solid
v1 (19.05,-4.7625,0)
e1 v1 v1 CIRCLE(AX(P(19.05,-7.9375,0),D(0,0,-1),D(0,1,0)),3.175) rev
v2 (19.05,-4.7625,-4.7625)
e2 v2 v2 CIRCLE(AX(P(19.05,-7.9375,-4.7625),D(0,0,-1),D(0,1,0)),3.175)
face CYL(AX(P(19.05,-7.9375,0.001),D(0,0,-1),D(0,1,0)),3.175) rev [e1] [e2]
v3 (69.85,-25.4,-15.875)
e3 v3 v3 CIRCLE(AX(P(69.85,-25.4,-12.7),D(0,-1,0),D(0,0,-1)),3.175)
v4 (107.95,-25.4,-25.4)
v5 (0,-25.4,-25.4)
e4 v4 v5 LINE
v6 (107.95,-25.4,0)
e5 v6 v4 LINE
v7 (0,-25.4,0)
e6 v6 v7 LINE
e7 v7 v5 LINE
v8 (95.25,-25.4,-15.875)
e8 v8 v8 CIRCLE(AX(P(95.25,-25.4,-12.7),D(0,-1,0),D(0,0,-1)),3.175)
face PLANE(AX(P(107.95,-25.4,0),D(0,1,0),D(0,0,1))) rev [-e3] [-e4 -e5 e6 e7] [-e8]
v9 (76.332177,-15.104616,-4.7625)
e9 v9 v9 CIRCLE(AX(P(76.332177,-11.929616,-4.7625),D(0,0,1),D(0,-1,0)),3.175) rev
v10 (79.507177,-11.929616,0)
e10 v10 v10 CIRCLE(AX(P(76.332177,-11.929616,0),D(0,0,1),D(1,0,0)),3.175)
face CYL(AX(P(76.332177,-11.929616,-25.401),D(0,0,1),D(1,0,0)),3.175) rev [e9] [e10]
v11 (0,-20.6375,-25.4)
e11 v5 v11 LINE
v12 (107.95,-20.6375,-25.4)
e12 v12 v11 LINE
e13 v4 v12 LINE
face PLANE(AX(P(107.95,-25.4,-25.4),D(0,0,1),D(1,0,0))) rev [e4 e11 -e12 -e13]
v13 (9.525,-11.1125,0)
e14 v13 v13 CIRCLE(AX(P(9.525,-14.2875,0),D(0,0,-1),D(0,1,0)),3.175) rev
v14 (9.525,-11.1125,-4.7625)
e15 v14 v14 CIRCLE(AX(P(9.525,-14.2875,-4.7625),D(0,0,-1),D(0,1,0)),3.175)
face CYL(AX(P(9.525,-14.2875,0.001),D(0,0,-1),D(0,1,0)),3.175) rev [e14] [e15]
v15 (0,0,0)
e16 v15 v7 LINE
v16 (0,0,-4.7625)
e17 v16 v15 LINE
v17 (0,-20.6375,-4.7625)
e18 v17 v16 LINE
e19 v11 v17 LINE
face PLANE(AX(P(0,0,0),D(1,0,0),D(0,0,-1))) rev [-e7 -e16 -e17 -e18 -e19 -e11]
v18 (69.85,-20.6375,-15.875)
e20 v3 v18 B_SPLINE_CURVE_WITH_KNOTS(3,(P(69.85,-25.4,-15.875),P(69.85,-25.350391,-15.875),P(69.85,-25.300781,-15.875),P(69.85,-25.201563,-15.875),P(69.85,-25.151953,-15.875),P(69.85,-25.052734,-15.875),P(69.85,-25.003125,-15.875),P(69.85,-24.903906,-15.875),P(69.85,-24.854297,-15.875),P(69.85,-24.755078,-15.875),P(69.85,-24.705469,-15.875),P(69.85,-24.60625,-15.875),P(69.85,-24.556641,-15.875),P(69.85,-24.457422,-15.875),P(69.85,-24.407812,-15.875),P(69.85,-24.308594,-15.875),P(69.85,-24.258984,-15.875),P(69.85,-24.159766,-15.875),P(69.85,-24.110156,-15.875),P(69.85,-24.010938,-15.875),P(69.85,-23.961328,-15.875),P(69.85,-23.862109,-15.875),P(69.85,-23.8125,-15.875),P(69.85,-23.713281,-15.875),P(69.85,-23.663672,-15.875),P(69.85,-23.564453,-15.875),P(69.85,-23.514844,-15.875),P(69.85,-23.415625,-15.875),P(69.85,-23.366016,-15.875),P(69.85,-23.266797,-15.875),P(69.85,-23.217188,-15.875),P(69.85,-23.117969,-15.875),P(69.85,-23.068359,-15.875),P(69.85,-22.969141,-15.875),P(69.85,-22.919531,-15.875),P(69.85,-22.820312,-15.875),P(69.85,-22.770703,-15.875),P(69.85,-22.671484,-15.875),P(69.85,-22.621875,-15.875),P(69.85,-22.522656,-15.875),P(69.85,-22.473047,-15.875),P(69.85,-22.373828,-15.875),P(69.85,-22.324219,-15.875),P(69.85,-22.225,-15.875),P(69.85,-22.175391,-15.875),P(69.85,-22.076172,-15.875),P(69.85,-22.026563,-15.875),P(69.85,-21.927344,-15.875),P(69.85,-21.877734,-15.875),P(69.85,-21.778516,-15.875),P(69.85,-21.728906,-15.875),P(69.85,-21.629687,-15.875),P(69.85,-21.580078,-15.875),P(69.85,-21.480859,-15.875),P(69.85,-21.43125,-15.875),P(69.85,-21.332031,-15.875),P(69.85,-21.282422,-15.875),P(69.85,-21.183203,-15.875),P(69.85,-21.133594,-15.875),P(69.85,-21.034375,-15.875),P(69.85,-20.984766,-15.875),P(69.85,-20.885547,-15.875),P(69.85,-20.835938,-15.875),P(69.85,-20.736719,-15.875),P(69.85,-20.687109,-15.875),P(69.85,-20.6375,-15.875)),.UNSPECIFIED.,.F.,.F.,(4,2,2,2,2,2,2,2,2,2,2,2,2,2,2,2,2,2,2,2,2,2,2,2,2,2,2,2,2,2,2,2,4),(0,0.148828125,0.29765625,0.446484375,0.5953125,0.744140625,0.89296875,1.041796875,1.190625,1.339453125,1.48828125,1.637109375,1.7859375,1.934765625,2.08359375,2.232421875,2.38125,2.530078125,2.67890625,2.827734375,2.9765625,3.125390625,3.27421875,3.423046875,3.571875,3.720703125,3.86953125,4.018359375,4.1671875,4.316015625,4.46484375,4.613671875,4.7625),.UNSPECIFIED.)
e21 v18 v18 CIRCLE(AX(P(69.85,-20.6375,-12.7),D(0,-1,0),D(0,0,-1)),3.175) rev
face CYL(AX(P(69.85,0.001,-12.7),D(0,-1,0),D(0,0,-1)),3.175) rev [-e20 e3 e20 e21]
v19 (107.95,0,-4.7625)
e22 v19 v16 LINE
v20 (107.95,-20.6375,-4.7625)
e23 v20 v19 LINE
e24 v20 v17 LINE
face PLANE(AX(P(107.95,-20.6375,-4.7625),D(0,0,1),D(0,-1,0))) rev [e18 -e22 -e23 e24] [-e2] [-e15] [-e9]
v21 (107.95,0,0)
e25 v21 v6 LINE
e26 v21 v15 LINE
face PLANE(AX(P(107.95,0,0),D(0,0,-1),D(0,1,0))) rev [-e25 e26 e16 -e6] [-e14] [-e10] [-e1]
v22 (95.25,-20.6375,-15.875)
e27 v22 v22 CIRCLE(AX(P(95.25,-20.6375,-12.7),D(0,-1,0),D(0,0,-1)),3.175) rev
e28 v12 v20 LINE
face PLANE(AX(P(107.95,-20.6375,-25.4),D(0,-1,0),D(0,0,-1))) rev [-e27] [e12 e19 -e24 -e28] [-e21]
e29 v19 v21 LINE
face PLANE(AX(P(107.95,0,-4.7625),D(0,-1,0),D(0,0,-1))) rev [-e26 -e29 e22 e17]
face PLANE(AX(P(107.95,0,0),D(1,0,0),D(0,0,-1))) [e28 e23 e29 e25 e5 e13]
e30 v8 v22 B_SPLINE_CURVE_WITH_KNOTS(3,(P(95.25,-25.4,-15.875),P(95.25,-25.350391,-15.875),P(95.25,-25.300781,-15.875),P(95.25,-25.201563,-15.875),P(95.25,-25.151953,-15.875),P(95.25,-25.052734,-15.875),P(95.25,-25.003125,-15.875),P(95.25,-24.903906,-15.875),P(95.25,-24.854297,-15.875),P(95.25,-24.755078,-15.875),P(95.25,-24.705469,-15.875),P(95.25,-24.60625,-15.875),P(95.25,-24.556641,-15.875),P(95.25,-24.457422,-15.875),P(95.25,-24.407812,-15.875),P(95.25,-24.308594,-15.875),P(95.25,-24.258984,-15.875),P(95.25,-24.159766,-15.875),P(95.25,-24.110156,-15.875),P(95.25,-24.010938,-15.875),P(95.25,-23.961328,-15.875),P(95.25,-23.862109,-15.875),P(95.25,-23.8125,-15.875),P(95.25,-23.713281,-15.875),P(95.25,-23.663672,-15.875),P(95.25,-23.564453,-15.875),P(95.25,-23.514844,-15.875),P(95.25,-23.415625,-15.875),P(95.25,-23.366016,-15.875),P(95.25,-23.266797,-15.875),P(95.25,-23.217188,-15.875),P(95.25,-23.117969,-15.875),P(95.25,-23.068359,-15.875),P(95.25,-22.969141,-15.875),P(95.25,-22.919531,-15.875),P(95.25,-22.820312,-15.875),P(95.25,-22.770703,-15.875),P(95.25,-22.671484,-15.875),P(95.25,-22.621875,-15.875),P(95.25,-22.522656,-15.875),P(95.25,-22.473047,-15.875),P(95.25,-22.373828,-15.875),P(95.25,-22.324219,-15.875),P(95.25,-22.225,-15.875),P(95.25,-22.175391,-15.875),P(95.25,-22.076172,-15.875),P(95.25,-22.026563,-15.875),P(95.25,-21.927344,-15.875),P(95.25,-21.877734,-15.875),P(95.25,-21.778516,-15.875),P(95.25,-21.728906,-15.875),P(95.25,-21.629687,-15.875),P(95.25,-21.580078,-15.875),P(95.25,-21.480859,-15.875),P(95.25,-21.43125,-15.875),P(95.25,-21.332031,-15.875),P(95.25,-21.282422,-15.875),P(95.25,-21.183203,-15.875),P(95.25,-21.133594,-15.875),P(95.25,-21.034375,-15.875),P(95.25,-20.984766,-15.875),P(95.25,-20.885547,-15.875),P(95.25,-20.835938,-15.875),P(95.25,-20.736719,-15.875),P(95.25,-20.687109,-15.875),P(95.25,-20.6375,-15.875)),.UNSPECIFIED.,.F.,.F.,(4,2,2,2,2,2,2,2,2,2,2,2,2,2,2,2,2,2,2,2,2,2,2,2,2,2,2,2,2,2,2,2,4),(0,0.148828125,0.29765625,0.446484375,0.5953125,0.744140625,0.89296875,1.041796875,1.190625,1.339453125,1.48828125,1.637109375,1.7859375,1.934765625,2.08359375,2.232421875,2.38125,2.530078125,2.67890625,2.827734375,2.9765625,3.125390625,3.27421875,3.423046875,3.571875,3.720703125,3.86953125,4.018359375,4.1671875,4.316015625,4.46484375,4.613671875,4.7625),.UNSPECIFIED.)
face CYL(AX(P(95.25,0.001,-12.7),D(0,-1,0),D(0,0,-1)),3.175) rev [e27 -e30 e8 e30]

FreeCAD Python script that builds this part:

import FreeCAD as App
import Part
import Sketcher
Q = App.Units.Quantity

doc = App.newDocument("Part")
body = doc.addObject("PartDesign::Body", "Body")

# Sketch on YZ plane
sketch1 = body.newObject("Sketcher::SketchObject", "Sketch")
sketch1.AttachmentSupport = (doc.getObject("YZ_Plane"), [""])
sketch1.MapMode = "FlatFace"
sketch1.addGeometry(Part.LineSegment(App.Vector(0, 0, 0), App.Vector(-25.4, 0, 0)), False)
sketch1.addGeometry(Part.LineSegment(App.Vector(-25.4, 0, 0), App.Vector(-25.4, -25.4, 0)), False)
sketch1.addGeometry(Part.LineSegment(App.Vector(-25.4, -25.4, 0), App.Vector(-20.6375, -25.4, 0)), False)
sketch1.addGeometry(Part.LineSegment(App.Vector(-20.6375, -25.4, 0), App.Vector(-20.6375, -4.7625, 0)), False)
sketch1.addGeometry(Part.LineSegment(App.Vector(-20.6375, -4.7625, 0), App.Vector(0, -4.7625, 0)), False)
sketch1.addGeometry(Part.LineSegment(App.Vector(0, -4.7625, 0), App.Vector(0, 0, 0)), False)
sketch1.addConstraint(Sketcher.Constraint("Coincident", 0, 2, 1, 1))
sketch1.addConstraint(Sketcher.Constraint("Coincident", 1, 2, 2, 1))
sketch1.addConstraint(Sketcher.Constraint("Coincident", 2, 2, 3, 1))
sketch1.addConstraint(Sketcher.Constraint("Coincident", 3, 2, 4, 1))
sketch1.addConstraint(Sketcher.Constraint("Coincident", 4, 2, 5, 1))
sketch1.addConstraint(Sketcher.Constraint("Coincident", 5, 2, 0, 1))
sketch1.addConstraint(Sketcher.Constraint("Horizontal", 0))
sketch1.addConstraint(Sketcher.Constraint("Vertical", 1))
sketch1.addConstraint(Sketcher.Constraint("Horizontal", 2))
sketch1.addConstraint(Sketcher.Constraint("Vertical", 3))
sketch1.addConstraint(Sketcher.Constraint("Horizontal", 4))
sketch1.addConstraint(Sketcher.Constraint("Vertical", 5))
sketch1.addConstraint(Sketcher.Constraint("Coincident", 5, 2, -1, 1))
sketch1.addConstraint(Sketcher.Constraint("Equal", 0, 1))
sketch1.addConstraint(Sketcher.Constraint("Equal", 4, 3))
sketch1.addConstraint(Sketcher.Constraint("DistanceX", 0, 2, 0, 1, Q("1 in")))
sketch1.addConstraint(Sketcher.Constraint("DistanceX", 2, 1, 2, 2, Q("0.1875 in")))
pad1 = body.newObject("PartDesign::Pad", "Pad")
pad1.Profile = sketch1
pad1.Length = Q("4.25 in")

# Sketch on XY plane
sketch2 = body.newObject("Sketcher::SketchObject", "Sketch001")
sketch2.AttachmentSupport = (doc.getObject("XY_Plane"), [""])
sketch2.MapMode = "FlatFace"
sketch2.AttachmentOffset = App.Placement(App.Vector(0, 0, -0.1875 * 25.4), App.Rotation())
sketch2.addGeometry(Part.Circle(App.Vector(9.525, -14.2875, 0), App.Vector(0, 0, 1), 3.175), False)
sketch2.addConstraint(Sketcher.Constraint("Diameter", 0, Q("0.25 in")))
sketch2.addConstraint(Sketcher.Constraint("DistanceX", -1, 1, 0, 3, Q("0.375 in")))
sketch2.addConstraint(Sketcher.Constraint("DistanceY", 0, 3, -1, 1, Q("0.5625 in")))
pocket1 = body.newObject("PartDesign::Pocket", "Pocket")
pocket1.Profile = sketch2
pocket1.Type = "UpToFirst"
pocket1.Reversed = True

# Sketch on XY plane
sketch3 = body.newObject("Sketcher::SketchObject", "Sketch002")
sketch3.AttachmentSupport = (doc.getObject("XY_Plane"), [""])
sketch3.MapMode = "FlatFace"
sketch3.AttachmentOffset = App.Placement(App.Vector(0, 0, -0.1875 * 25.4), App.Rotation())
sketch3.addGeometry(Part.Circle(App.Vector(19.05, -7.9375, 0), App.Vector(0, 0, 1), 3.175), False)
sketch3.addConstraint(Sketcher.Constraint("Diameter", 0, Q("0.25 in")))
sketch3.addConstraint(Sketcher.Constraint("DistanceX", -1, 1, 0, 3, Q("0.75 in")))
sketch3.addConstraint(Sketcher.Constraint("DistanceY", 0, 3, -1, 1, Q("0.3125 in")))
pocket2 = body.newObject("PartDesign::Pocket", "Pocket001")
pocket2.Profile = sketch3
pocket2.Type = "UpToFirst"
pocket2.Reversed = True

# Sketch on XY plane
sketch4 = body.newObject("Sketcher::SketchObject", "Sketch003")
sketch4.AttachmentSupport = (doc.getObject("XY_Plane"), [""])
sketch4.MapMode = "FlatFace"
sketch4.addGeometry(Part.Circle(App.Vector(76.332177, -11.929616, 0), App.Vector(0, 0, 1), 3.175), False)
sketch4.addConstraint(Sketcher.Constraint("Diameter", 0, Q("0.25 in")))
sketch4.addConstraint(Sketcher.Constraint("DistanceX", -1, 1, 0, 3, Q("76.332177 mm")))
sketch4.addConstraint(Sketcher.Constraint("DistanceY", 0, 3, -1, 1, Q("11.929616 mm")))
pocket3 = body.newObject("PartDesign::Pocket", "Pocket002")
pocket3.Profile = sketch4
pocket3.Type = "UpToFirst"

# Sketch on XZ plane
sketch5 = body.newObject("Sketcher::SketchObject", "Sketch004")
sketch5.AttachmentSupport = (doc.getObject("XZ_Plane"), [""])
sketch5.MapMode = "FlatFace"
sketch5.AttachmentOffset = App.Placement(App.Vector(0, 0, 1 * 25.4), App.Rotation())
sketch5.addGeometry(Part.Circle(App.Vector(69.85, -12.7, 0), App.Vector(0, 0, 1), 3.175), False)
sketch5.addConstraint(Sketcher.Constraint("Diameter", 0, Q("0.25 in")))
sketch5.addConstraint(Sketcher.Constraint("DistanceY", 0, 3, -1, 1, Q("0.5 in")))
sketch5.addConstraint(Sketcher.Constraint("DistanceX", -1, 1, 0, 3, Q("2.75 in")))
pocket4 = body.newObject("PartDesign::Pocket", "Pocket003")
pocket4.Profile = sketch5
pocket4.Type = "UpToFirst"

# Sketch on XZ plane
sketch6 = body.newObject("Sketcher::SketchObject", "Sketch005")
sketch6.AttachmentSupport = (doc.getObject("XZ_Plane"), [""])
sketch6.MapMode = "FlatFace"
sketch6.AttachmentOffset = App.Placement(App.Vector(0, 0, 1 * 25.4), App.Rotation())
sketch6.addGeometry(Part.Circle(App.Vector(95.25, -12.7, 0), App.Vector(0, 0, 1), 3.175), False)
sketch6.addConstraint(Sketcher.Constraint("Diameter", 0, Q("0.25 in")))
sketch6.addConstraint(Sketcher.Constraint("DistanceY", 0, 3, -1, 1, Q("0.5 in")))
sketch6.addConstraint(Sketcher.Constraint("DistanceX", -1, 1, 0, 3, Q("3.75 in")))
pocket5 = body.newObject("PartDesign::Pocket", "Pocket004")
pocket5.Profile = sketch6
pocket5.Type = "UpToFirst"

doc.recompute()
